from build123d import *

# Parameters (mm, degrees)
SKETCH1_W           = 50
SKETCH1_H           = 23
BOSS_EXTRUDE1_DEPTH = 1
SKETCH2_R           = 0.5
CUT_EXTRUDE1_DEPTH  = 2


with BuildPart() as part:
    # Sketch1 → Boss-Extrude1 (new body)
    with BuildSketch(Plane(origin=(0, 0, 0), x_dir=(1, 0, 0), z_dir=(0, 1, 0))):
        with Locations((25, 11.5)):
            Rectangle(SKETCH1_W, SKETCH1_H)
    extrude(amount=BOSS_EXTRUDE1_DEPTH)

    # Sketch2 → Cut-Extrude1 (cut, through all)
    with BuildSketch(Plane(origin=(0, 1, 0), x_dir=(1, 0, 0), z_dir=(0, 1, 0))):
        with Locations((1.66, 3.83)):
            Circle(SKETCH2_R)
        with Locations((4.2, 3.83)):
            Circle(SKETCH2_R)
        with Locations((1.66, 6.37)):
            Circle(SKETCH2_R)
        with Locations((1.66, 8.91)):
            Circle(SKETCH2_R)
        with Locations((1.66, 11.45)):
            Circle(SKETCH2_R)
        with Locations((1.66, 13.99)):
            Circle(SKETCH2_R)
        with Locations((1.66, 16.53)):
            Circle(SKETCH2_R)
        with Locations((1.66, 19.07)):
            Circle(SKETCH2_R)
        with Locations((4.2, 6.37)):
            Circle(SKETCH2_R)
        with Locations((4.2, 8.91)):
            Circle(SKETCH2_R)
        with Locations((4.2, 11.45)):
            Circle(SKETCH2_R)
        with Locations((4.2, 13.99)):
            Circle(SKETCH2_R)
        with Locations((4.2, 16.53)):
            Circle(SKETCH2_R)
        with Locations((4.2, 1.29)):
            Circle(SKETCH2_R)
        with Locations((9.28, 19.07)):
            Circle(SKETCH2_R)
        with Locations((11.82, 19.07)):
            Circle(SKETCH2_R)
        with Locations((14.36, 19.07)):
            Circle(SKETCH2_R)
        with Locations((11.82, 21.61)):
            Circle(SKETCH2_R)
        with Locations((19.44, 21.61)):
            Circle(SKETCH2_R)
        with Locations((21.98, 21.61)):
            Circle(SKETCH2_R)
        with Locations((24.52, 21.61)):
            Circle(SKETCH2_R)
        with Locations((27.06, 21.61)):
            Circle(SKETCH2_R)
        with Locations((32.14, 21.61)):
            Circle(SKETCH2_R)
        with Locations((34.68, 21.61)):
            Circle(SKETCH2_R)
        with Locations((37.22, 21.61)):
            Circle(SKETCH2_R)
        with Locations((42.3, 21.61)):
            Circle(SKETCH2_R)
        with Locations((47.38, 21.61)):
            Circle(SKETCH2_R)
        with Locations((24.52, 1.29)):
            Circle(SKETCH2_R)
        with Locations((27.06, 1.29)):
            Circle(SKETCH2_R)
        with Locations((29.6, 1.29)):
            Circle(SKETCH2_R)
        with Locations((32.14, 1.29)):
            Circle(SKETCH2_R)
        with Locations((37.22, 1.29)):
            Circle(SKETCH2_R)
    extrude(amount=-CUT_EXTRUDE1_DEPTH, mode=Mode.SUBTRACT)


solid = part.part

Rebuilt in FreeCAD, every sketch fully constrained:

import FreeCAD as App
import Part
import Sketcher
from FreeCAD import Vector
Q = App.Units.Quantity


def add_polygon(sketch, points):
    """Adds a closed chain of lines whose ends are joined by coincident constraints."""
    first, n = sketch.GeometryCount, len(points)
    for a, b in zip(points, points[1:] + points[:1]):
        sketch.addGeometry(Part.LineSegment(App.Vector(*a, 0), App.Vector(*b, 0)), False)
    for i in range(n):
        sketch.addConstraint(Sketcher.Constraint("Coincident", first + i, 2, first + (i + 1) % n, 1))

doc = App.newDocument("Part")
body = doc.addObject("PartDesign::Body", "Body")

# Sketch on XZ plane
sketch1 = doc.addObject("Sketcher::SketchObject", "Sketch")
body.addObject(sketch1)
sketch1.AttachmentSupport = (doc.XZ_Plane, [""])
sketch1.MapMode = "FlatFace"
add_polygon(sketch1, [(0, -23), (0, 0), (50, 0), (50, -23)])  # lines 0-3
sketch1.addConstraint(Sketcher.Constraint("Vertical", 0))
sketch1.addConstraint(Sketcher.Constraint("Horizontal", 1))
sketch1.addConstraint(Sketcher.Constraint("Vertical", 2))
sketch1.addConstraint(Sketcher.Constraint("Horizontal", 3))
sketch1.addConstraint(Sketcher.Constraint("Coincident", 0, 2, -1, 1))
sketch1.addConstraint(Sketcher.Constraint("DistanceX", 1, 1, 1, 2, Q("50 mm")))
sketch1.addConstraint(Sketcher.Constraint("DistanceY", 0, 1, 0, 2, Q("23 mm")))
pad1 = doc.addObject("PartDesign::Pad", "Pad")
body.addObject(pad1)
pad1.Profile = sketch1
pad1.Length = 1
pad1.Reversed = True

# Sketch on XZ plane
sketch2 = doc.addObject("Sketcher::SketchObject", "Sketch001")
body.addObject(sketch2)
sketch2.AttachmentSupport = (doc.XZ_Plane, [""])
sketch2.MapMode = "FlatFace"
sketch2.AttachmentOffset = App.Placement(Vector(0, 0, -1), App.Rotation())
sketch2.addGeometry(Part.Circle(Vector(1.7, -3.8, 0), Vector(0, 0, 1), 0.5), False)
sketch2.addGeometry(Part.Circle(Vector(4.2, -3.8, 0), Vector(0, 0, 1), 0.5), False)
sketch2.addGeometry(Part.Circle(Vector(1.7, -6.4, 0), Vector(0, 0, 1), 0.5), False)
sketch2.addGeometry(Part.Circle(Vector(1.7, -8.9, 0), Vector(0, 0, 1), 0.5), False)
sketch2.addGeometry(Part.Circle(Vector(1.7, -11.4, 0), Vector(0, 0, 1), 0.5), False)
sketch2.addGeometry(Part.Circle(Vector(1.7, -14, 0), Vector(0, 0, 1), 0.5), False)
sketch2.addGeometry(Part.Circle(Vector(1.7, -16.5, 0), Vector(0, 0, 1), 0.5), False)
sketch2.addGeometry(Part.Circle(Vector(1.7, -19.1, 0), Vector(0, 0, 1), 0.5), False)
sketch2.addGeometry(Part.Circle(Vector(4.2, -6.4, 0), Vector(0, 0, 1), 0.5), False)
sketch2.addGeometry(Part.Circle(Vector(4.2, -8.9, 0), Vector(0, 0, 1), 0.5), False)
sketch2.addGeometry(Part.Circle(Vector(4.2, -11.4, 0), Vector(0, 0, 1), 0.5), False)
sketch2.addGeometry(Part.Circle(Vector(4.2, -14, 0), Vector(0, 0, 1), 0.5), False)
sketch2.addGeometry(Part.Circle(Vector(4.2, -16.5, 0), Vector(0, 0, 1), 0.5), False)
sketch2.addGeometry(Part.Circle(Vector(4.2, -1.3, 0), Vector(0, 0, 1), 0.5), False)
sketch2.addGeometry(Part.Circle(Vector(9.3, -19.1, 0), Vector(0, 0, 1), 0.5), False)
sketch2.addGeometry(Part.Circle(Vector(11.8, -19.1, 0), Vector(0, 0, 1), 0.5), False)
sketch2.addGeometry(Part.Circle(Vector(14.4, -19.1, 0), Vector(0, 0, 1), 0.5), False)
sketch2.addGeometry(Part.Circle(Vector(11.8, -21.6, 0), Vector(0, 0, 1), 0.5), False)
sketch2.addGeometry(Part.Circle(Vector(19.4, -21.6, 0), Vector(0, 0, 1), 0.5), False)
sketch2.addGeometry(Part.Circle(Vector(22, -21.6, 0), Vector(0, 0, 1), 0.5), False)
sketch2.addGeometry(Part.Circle(Vector(24.5, -21.6, 0), Vector(0, 0, 1), 0.5), False)
sketch2.addGeometry(Part.Circle(Vector(27.1, -21.6, 0), Vector(0, 0, 1), 0.5), False)
sketch2.addGeometry(Part.Circle(Vector(32.1, -21.6, 0), Vector(0, 0, 1), 0.5), False)
sketch2.addGeometry(Part.Circle(Vector(34.7, -21.6, 0), Vector(0, 0, 1), 0.5), False)
sketch2.addGeometry(Part.Circle(Vector(37.2, -21.6, 0), Vector(0, 0, 1), 0.5), False)
sketch2.addGeometry(Part.Circle(Vector(42.3, -21.6, 0), Vector(0, 0, 1), 0.5), False)
sketch2.addGeometry(Part.Circle(Vector(47.4, -21.6, 0), Vector(0, 0, 1), 0.5), False)
sketch2.addGeometry(Part.Circle(Vector(24.5, -1.3, 0), Vector(0, 0, 1), 0.5), False)
sketch2.addGeometry(Part.Circle(Vector(27.1, -1.3, 0), Vector(0, 0, 1), 0.5), False)
sketch2.addGeometry(Part.Circle(Vector(29.6, -1.3, 0), Vector(0, 0, 1), 0.5), False)
sketch2.addGeometry(Part.Circle(Vector(32.1, -1.3, 0), Vector(0, 0, 1), 0.5), False)
sketch2.addGeometry(Part.Circle(Vector(37.2, -1.3, 0), Vector(0, 0, 1), 0.5), False)
sketch2.addConstraint(Sketcher.Constraint("Equal", 0, 1))
sketch2.addConstraint(Sketcher.Constraint("Equal", 1, 2))
sketch2.addConstraint(Sketcher.Constraint("Equal", 2, 3))
sketch2.addConstraint(Sketcher.Constraint("Equal", 3, 4))
sketch2.addConstraint(Sketcher.Constraint("Equal", 4, 5))
sketch2.addConstraint(Sketcher.Constraint("Equal", 5, 6))
sketch2.addConstraint(Sketcher.Constraint("Equal", 6, 7))
sketch2.addConstraint(Sketcher.Constraint("Equal", 7, 8))
sketch2.addConstraint(Sketcher.Constraint("Equal", 8, 9))
sketch2.addConstraint(Sketcher.Constraint("Equal", 9, 10))
sketch2.addConstraint(Sketcher.Constraint("Equal", 10, 11))
sketch2.addConstraint(Sketcher.Constraint("Equal", 11, 12))
sketch2.addConstraint(Sketcher.Constraint("Equal", 12, 13))
sketch2.addConstraint(Sketcher.Constraint("Equal", 13, 14))
sketch2.addConstraint(Sketcher.Constraint("Equal", 14, 15))
sketch2.addConstraint(Sketcher.Constraint("Equal", 15, 16))
sketch2.addConstraint(Sketcher.Constraint("Equal", 16, 17))
sketch2.addConstraint(Sketcher.Constraint("Equal", 17, 18))
sketch2.addConstraint(Sketcher.Constraint("Equal", 18, 19))
sketch2.addConstraint(Sketcher.Constraint("Equal", 19, 20))
sketch2.addConstraint(Sketcher.Constraint("Equal", 20, 21))
sketch2.addConstraint(Sketcher.Constraint("Equal", 21, 22))
sketch2.addConstraint(Sketcher.Constraint("Equal", 22, 23))
sketch2.addConstraint(Sketcher.Constraint("Equal", 23, 24))
sketch2.addConstraint(Sketcher.Constraint("Equal", 24, 25))
sketch2.addConstraint(Sketcher.Constraint("Equal", 25, 26))
sketch2.addConstraint(Sketcher.Constraint("Equal", 26, 27))
sketch2.addConstraint(Sketcher.Constraint("Equal", 27, 28))
sketch2.addConstraint(Sketcher.Constraint("Equal", 28, 29))
sketch2.addConstraint(Sketcher.Constraint("Equal", 29, 30))
sketch2.addConstraint(Sketcher.Constraint("Equal", 30, 31))
sketch2.addConstraint(Sketcher.Constraint("Horizontal", 0, 3, 1, 3))
sketch2.addConstraint(Sketcher.Constraint("Horizontal", 2, 3, 8, 3))
sketch2.addConstraint(Sketcher.Constraint("Horizontal", 3, 3, 9, 3))
sketch2.addConstraint(Sketcher.Constraint("Horizontal", 4, 3, 10, 3))
sketch2.addConstraint(Sketcher.Constraint("Horizontal", 5, 3, 11, 3))
sketch2.addConstraint(Sketcher.Constraint("Horizontal", 6, 3, 12, 3))
sketch2.addConstraint(Sketcher.Constraint("Horizontal", 7, 3, 14, 3))
sketch2.addConstraint(Sketcher.Constraint("Horizontal", 14, 3, 15, 3))
sketch2.addConstraint(Sketcher.Constraint("Horizontal", 15, 3, 16, 3))
sketch2.addConstraint(Sketcher.Constraint("Horizontal", 17, 3, 18, 3))
sketch2.addConstraint(Sketcher.Constraint("Horizontal", 18, 3, 19, 3))
sketch2.addConstraint(Sketcher.Constraint("Horizontal", 19, 3, 20, 3))
sketch2.addConstraint(Sketcher.Constraint("Horizontal", 20, 3, 21, 3))
sketch2.addConstraint(Sketcher.Constraint("Horizontal", 21, 3, 22, 3))
sketch2.addConstraint(Sketcher.Constraint("Horizontal", 22, 3, 23, 3))
sketch2.addConstraint(Sketcher.Constraint("Horizontal", 23, 3, 24, 3))
sketch2.addConstraint(Sketcher.Constraint("Horizontal", 24, 3, 25, 3))
sketch2.addConstraint(Sketcher.Constraint("Horizontal", 25, 3, 26, 3))
sketch2.addConstraint(Sketcher.Constraint("Horizontal", 13, 3, 27, 3))
sketch2.addConstraint(Sketcher.Constraint("Horizontal", 27, 3, 28, 3))
sketch2.addConstraint(Sketcher.Constraint("Horizontal", 28, 3, 29, 3))
sketch2.addConstraint(Sketcher.Constraint("Horizontal", 29, 3, 30, 3))
sketch2.addConstraint(Sketcher.Constraint("Horizontal", 30, 3, 31, 3))
sketch2.addConstraint(Sketcher.Constraint("Vertical", 0, 3, 2, 3))
sketch2.addConstraint(Sketcher.Constraint("Vertical", 2, 3, 3, 3))
sketch2.addConstraint(Sketcher.Constraint("Vertical", 3, 3, 4, 3))
sketch2.addConstraint(Sketcher.Constraint("Vertical", 4, 3, 5, 3))
sketch2.addConstraint(Sketcher.Constraint("Vertical", 5, 3, 6, 3))
sketch2.addConstraint(Sketcher.Constraint("Vertical", 6, 3, 7, 3))
sketch2.addConstraint(Sketcher.Constraint("Vertical", 1, 3, 8, 3))
sketch2.addConstraint(Sketcher.Constraint("Vertical", 8, 3, 9, 3))
sketch2.addConstraint(Sketcher.Constraint("Vertical", 9, 3, 10, 3))
sketch2.addConstraint(Sketcher.Constraint("Vertical", 10, 3, 11, 3))
sketch2.addConstraint(Sketcher.Constraint("Vertical", 11, 3, 12, 3))
sketch2.addConstraint(Sketcher.Constraint("Vertical", 12, 3, 13, 3))
sketch2.addConstraint(Sketcher.Constraint("Vertical", 15, 3, 17, 3))
sketch2.addConstraint(Sketcher.Constraint("Vertical", 20, 3, 27, 3))
sketch2.addConstraint(Sketcher.Constraint("Vertical", 21, 3, 28, 3))
sketch2.addConstraint(Sketcher.Constraint("Vertical", 22, 3, 30, 3))
sketch2.addConstraint(Sketcher.Constraint("Vertical", 24, 3, 31, 3))
sketch2.addConstraint(Sketcher.Constraint("Diameter", 0, Q("1 mm")))
sketch2.addConstraint(Sketcher.Constraint("DistanceX", -1, 1, 1, 3, Q("4.2 mm")))
sketch2.addConstraint(Sketcher.Constraint("DistanceX", -1, 1, 25, 3, Q("42.3 mm")))
sketch2.addConstraint(Sketcher.Constraint("DistanceX", -1, 1, 29, 3, Q("29.6 mm")))
sketch2.addConstraint(Sketcher.Constraint("DistanceY", 6, 3, 0, 3, Q("12.7 mm")))
sketch2.addConstraint(Sketcher.Constraint("DistanceY", 7, 3, 2, 3, Q("12.7 mm")))
sketch2.addConstraint(Sketcher.Constraint("DistanceX", 7, 3, 16, 3, Q("12.7 mm")))
sketch2.addConstraint(Sketcher.Constraint("DistanceX", 14, 3, 19, 3, Q("12.7 mm")))
sketch2.addConstraint(Sketcher.Constraint("DistanceX", 17, 3, 20, 3, Q("12.7 mm")))
sketch2.addConstraint(Sketcher.Constraint("DistanceX", 16, 3, 21, 3, Q("12.7 mm")))
sketch2.addConstraint(Sketcher.Constraint("DistanceX", 18, 3, 22, 3, Q("12.7 mm")))
sketch2.addConstraint(Sketcher.Constraint("DistanceX", 19, 3, 23, 3, Q("12.7 mm")))
sketch2.addConstraint(Sketcher.Constraint("DistanceX", 20, 3, 24, 3, Q("12.7 mm")))
sketch2.addConstraint(Sketcher.Constraint("DistanceX", 23, 3, 26, 3, Q("12.7 mm")))
sketch2.addConstraint(Sketcher.Constraint("DistanceX", -1, 1, 0, 3, Q("1.66 mm")))
sketch2.addConstraint(Sketcher.Constraint("DistanceY", 0, 3, -1, 1, Q("3.83 mm")))
sketch2.addConstraint(Sketcher.Constraint("DistanceY", 2, 3, -1, 1, Q("6.37 mm")))
sketch2.addConstraint(Sketcher.Constraint("DistanceY", 3, 3, -1, 1, Q("8.91 mm")))
sketch2.addConstraint(Sketcher.Constraint("DistanceY", 4, 3, -1, 1, Q("11.45 mm")))
sketch2.addConstraint(Sketcher.Constraint("DistanceY", 5, 3, -1, 1, Q("13.99 mm")))
sketch2.addConstraint(Sketcher.Constraint("DistanceY", 13, 3, -1, 1, Q("1.29 mm")))
sketch2.addConstraint(Sketcher.Constraint("DistanceX", -1, 1, 14, 3, Q("9.28 mm")))
sketch2.addConstraint(Sketcher.Constraint("DistanceX", -1, 1, 15, 3, Q("11.82 mm")))
sketch2.addConstraint(Sketcher.Constraint("DistanceY", 17, 3, -1, 1, Q("21.61 mm")))
sketch2.addConstraint(Sketcher.Constraint("DistanceX", -1, 1, 18, 3, Q("19.44 mm")))
pocket1 = doc.addObject("PartDesign::Pocket", "Pocket")
body.addObject(pocket1)
pocket1.Profile = sketch2
pocket1.Type = "ThroughAll"
pocket1.Reversed = True

doc.recompute()
